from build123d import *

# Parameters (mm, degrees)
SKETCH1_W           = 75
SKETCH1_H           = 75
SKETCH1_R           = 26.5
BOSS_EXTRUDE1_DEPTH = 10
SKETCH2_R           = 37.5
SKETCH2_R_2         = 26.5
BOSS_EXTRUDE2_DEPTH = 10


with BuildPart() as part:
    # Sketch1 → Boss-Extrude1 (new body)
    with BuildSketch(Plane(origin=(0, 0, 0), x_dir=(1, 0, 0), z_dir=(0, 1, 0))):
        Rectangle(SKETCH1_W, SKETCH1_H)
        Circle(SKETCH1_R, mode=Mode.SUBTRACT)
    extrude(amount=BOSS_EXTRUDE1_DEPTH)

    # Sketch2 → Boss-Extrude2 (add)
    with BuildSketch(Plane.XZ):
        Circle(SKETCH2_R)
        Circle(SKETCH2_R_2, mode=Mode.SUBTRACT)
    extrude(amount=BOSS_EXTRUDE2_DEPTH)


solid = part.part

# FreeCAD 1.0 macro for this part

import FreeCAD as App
import Part
import Sketcher
from FreeCAD import Vector
Q = App.Units.Quantity

doc = App.newDocument("Part")
body = doc.addObject("PartDesign::Body", "Body")

# Sketch on XZ plane
sketch1 = body.newObject("Sketcher::SketchObject", "Sketch")
sketch1.AttachmentSupport = (doc.getObject("XZ_Plane"), [""])
sketch1.MapMode = "FlatFace"
sketch1.addGeometry([
    Part.LineSegment(Vector(-38, -38, 0), Vector(-38, 38, 0)),  # 0
    Part.LineSegment(Vector(-38, 38, 0), Vector(38, 38, 0)),  # 1
    Part.LineSegment(Vector(38, 38, 0), Vector(38, -38, 0)),  # 2
    Part.LineSegment(Vector(38, -38, 0), Vector(-38, -38, 0)),  # 3
    Part.Circle(Vector(0, 0, 0), Vector(0, 0, 1), 26),  # 4
], False)
sketch1.addConstraint([
    Sketcher.Constraint("Coincident", 0, 2, 1, 1),
    Sketcher.Constraint("Coincident", 1, 2, 2, 1),
    Sketcher.Constraint("Coincident", 2, 2, 3, 1),
    Sketcher.Constraint("Coincident", 3, 2, 0, 1),
    Sketcher.Constraint("Vertical", 0),
    Sketcher.Constraint("Horizontal", 1),
    Sketcher.Constraint("Vertical", 2),
    Sketcher.Constraint("Horizontal", 3),
    Sketcher.Constraint("Coincident", 4, 3, -1, 1),
    Sketcher.Constraint("Symmetric", 0, 2, 2, 2, -1, 1),
    Sketcher.Constraint("Equal", 3, 0),
    Sketcher.Constraint("Diameter", 4, Q("53 mm")),
    Sketcher.Constraint("DistanceX", 1, 1, 1, 2, Q("75 mm")),
])
pad1 = body.newObject("PartDesign::Pad", "Pad")
pad1.Profile = sketch1
pad1.Length = 10
pad1.Reversed = True

# Sketch on XZ plane
sketch2 = body.newObject("Sketcher::SketchObject", "Sketch001")
sketch2.AttachmentSupport = (doc.getObject("XZ_Plane"), [""])
sketch2.MapMode = "FlatFace"
sketch2.addGeometry([
    Part.Circle(Vector(0, 0, 0), Vector(0, 0, 1), 38),
    Part.Circle(Vector(0, 0, 0), Vector(0, 0, 1), 26),
], False)
sketch2.addConstraint([
    Sketcher.Constraint("Coincident", 0, 3, -1, 1),
    Sketcher.Constraint("Coincident", 1, 3, -1, 1),
    Sketcher.Constraint("Diameter", 0, Q("75 mm")),
    Sketcher.Constraint("Diameter", 1, Q("53 mm")),
])
pad2 = body.newObject("PartDesign::Pad", "Pad001")
pad2.Profile = sketch2
pad2.Length = 10

doc.recompute()
